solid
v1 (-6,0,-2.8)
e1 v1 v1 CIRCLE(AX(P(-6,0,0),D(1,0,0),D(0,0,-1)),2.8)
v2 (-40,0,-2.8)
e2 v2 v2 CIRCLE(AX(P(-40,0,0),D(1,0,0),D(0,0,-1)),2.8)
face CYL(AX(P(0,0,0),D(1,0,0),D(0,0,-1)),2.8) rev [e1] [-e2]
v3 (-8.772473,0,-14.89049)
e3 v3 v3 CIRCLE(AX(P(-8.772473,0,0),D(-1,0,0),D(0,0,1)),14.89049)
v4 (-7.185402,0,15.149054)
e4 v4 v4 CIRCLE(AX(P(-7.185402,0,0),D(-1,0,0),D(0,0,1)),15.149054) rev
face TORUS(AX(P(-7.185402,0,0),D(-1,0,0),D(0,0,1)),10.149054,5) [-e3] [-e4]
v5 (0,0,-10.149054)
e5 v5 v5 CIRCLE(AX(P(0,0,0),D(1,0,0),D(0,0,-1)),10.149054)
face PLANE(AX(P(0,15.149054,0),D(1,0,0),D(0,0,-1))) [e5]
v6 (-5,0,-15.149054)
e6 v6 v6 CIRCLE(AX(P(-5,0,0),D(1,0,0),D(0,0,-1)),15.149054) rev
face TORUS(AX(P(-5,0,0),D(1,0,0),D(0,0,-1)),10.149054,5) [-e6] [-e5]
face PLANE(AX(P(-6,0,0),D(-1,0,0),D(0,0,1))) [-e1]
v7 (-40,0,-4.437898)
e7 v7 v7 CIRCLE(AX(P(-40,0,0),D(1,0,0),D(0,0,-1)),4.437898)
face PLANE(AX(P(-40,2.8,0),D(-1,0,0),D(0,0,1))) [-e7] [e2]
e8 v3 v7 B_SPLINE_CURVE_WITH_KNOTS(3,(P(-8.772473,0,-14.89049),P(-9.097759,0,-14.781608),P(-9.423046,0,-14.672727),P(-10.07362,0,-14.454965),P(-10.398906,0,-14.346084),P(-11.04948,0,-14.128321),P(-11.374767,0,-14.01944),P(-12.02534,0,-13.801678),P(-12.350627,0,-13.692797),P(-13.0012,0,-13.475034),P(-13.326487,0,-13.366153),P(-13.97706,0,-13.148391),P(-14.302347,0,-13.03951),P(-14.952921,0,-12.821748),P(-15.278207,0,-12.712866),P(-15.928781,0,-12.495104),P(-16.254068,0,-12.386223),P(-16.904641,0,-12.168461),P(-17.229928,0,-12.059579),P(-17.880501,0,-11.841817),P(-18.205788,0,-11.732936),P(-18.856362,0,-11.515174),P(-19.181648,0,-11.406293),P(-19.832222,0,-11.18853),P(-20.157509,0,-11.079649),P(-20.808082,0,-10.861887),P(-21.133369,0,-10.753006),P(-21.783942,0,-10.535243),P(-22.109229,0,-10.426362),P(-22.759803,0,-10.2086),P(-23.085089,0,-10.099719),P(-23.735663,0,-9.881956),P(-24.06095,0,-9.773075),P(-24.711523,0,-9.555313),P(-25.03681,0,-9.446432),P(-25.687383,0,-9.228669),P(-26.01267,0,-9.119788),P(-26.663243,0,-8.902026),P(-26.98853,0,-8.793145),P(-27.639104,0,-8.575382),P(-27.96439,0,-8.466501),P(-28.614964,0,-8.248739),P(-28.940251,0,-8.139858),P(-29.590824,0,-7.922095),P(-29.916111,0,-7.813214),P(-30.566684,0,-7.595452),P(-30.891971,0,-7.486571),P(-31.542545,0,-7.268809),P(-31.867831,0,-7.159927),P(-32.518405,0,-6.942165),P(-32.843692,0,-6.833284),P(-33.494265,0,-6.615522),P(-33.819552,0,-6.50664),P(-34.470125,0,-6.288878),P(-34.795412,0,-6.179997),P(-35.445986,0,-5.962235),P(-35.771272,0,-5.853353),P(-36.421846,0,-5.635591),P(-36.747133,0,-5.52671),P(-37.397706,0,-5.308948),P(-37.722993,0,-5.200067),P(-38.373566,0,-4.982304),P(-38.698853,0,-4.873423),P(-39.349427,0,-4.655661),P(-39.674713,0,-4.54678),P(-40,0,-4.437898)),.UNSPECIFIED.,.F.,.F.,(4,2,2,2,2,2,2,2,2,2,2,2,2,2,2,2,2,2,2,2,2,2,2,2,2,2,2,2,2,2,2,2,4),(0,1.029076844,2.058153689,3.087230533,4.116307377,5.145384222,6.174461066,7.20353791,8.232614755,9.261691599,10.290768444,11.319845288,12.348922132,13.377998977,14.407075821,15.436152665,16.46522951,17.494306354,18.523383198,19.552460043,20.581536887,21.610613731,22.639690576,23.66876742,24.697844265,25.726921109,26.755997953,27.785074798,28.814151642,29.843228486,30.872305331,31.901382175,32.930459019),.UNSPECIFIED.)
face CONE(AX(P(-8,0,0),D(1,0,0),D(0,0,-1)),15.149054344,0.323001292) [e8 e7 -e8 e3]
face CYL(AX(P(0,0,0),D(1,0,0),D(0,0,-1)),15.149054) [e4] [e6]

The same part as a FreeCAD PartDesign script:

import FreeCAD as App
import Part
import Sketcher
Q = App.Units.Quantity


def edges_at(feature, points):
    """Names of the edges that pass closest to the given points."""
    edges = feature.Shape.Edges
    near = lambda p: min(range(len(edges)), key=lambda i: edges[i].distToShape(Part.Vertex(*p))[0])
    return sorted({f"Edge{near(p) + 1}" for p in points})


def add_polygon(sketch, points):
    """Adds a closed chain of lines whose ends are joined by coincident constraints."""
    first, n = sketch.GeometryCount, len(points)
    for a, b in zip(points, points[1:] + points[:1]):
        sketch.addGeometry(Part.LineSegment(App.Vector(*a, 0), App.Vector(*b, 0)), False)
    for i in range(n):
        sketch.addConstraint(Sketcher.Constraint("Coincident", first + i, 2, first + (i + 1) % n, 1))

doc = App.newDocument("Part")
body = doc.addObject("PartDesign::Body", "Body")

sketch1 = body.newObject("Sketcher::SketchObject", "Sketch")
sketch1.AttachmentSupport = (doc.getObject("XY_Plane"), [""])
sketch1.MapMode = "FlatFace"
add_polygon(sketch1, [(-6, 0), (0, 0), (0, 15.1), (-8, 15.1), (-40, 4.4), (-40, 2.8), (-6, 2.8)])
sketch1.addConstraint([
    Sketcher.Constraint("Horizontal", 0),
    Sketcher.Constraint("Vertical", 1),
    Sketcher.Constraint("Horizontal", 2),
    Sketcher.Constraint("Vertical", 4),
    Sketcher.Constraint("Horizontal", 5),
    Sketcher.Constraint("Vertical", 6),
    Sketcher.Constraint("Coincident", 0, 2, -1, 1),
    Sketcher.Constraint("DistanceX", 0, 1, 0, 2, Q("6 mm")),
    Sketcher.Constraint("DistanceX", 2, 2, 2, 1, Q("8 mm")),
    Sketcher.Constraint("DistanceX", 5, 1, 5, 2, Q("34 mm")),
    Sketcher.Constraint("DistanceY", 6, 2, 6, 1, Q("2.8 mm")),
    Sketcher.Constraint("DistanceY", 4, 2, 4, 1, Q("1.637898 mm")),
    Sketcher.Constraint("DistanceY", 1, 1, 1, 2, Q("15.149054 mm")),
])
revolution = body.newObject("PartDesign::Revolution", "Revolution")
revolution.Profile = sketch1
revolution.ReferenceAxis = (sketch1, ["H_Axis"])
revolution.Angle = 360
doc.recompute()

fillet = body.newObject("PartDesign::Fillet", "Fillet")
fillet.Base = (revolution, edges_at(revolution, [(-8, 0, 15.149)]))
fillet.Radius = 5
doc.recompute()

fillet2 = body.newObject("PartDesign::Fillet", "Fillet001")
fillet2.Base = (fillet, edges_at(fillet, [(0, 0, 15.149)]))
fillet2.Radius = 5

doc.recompute()
